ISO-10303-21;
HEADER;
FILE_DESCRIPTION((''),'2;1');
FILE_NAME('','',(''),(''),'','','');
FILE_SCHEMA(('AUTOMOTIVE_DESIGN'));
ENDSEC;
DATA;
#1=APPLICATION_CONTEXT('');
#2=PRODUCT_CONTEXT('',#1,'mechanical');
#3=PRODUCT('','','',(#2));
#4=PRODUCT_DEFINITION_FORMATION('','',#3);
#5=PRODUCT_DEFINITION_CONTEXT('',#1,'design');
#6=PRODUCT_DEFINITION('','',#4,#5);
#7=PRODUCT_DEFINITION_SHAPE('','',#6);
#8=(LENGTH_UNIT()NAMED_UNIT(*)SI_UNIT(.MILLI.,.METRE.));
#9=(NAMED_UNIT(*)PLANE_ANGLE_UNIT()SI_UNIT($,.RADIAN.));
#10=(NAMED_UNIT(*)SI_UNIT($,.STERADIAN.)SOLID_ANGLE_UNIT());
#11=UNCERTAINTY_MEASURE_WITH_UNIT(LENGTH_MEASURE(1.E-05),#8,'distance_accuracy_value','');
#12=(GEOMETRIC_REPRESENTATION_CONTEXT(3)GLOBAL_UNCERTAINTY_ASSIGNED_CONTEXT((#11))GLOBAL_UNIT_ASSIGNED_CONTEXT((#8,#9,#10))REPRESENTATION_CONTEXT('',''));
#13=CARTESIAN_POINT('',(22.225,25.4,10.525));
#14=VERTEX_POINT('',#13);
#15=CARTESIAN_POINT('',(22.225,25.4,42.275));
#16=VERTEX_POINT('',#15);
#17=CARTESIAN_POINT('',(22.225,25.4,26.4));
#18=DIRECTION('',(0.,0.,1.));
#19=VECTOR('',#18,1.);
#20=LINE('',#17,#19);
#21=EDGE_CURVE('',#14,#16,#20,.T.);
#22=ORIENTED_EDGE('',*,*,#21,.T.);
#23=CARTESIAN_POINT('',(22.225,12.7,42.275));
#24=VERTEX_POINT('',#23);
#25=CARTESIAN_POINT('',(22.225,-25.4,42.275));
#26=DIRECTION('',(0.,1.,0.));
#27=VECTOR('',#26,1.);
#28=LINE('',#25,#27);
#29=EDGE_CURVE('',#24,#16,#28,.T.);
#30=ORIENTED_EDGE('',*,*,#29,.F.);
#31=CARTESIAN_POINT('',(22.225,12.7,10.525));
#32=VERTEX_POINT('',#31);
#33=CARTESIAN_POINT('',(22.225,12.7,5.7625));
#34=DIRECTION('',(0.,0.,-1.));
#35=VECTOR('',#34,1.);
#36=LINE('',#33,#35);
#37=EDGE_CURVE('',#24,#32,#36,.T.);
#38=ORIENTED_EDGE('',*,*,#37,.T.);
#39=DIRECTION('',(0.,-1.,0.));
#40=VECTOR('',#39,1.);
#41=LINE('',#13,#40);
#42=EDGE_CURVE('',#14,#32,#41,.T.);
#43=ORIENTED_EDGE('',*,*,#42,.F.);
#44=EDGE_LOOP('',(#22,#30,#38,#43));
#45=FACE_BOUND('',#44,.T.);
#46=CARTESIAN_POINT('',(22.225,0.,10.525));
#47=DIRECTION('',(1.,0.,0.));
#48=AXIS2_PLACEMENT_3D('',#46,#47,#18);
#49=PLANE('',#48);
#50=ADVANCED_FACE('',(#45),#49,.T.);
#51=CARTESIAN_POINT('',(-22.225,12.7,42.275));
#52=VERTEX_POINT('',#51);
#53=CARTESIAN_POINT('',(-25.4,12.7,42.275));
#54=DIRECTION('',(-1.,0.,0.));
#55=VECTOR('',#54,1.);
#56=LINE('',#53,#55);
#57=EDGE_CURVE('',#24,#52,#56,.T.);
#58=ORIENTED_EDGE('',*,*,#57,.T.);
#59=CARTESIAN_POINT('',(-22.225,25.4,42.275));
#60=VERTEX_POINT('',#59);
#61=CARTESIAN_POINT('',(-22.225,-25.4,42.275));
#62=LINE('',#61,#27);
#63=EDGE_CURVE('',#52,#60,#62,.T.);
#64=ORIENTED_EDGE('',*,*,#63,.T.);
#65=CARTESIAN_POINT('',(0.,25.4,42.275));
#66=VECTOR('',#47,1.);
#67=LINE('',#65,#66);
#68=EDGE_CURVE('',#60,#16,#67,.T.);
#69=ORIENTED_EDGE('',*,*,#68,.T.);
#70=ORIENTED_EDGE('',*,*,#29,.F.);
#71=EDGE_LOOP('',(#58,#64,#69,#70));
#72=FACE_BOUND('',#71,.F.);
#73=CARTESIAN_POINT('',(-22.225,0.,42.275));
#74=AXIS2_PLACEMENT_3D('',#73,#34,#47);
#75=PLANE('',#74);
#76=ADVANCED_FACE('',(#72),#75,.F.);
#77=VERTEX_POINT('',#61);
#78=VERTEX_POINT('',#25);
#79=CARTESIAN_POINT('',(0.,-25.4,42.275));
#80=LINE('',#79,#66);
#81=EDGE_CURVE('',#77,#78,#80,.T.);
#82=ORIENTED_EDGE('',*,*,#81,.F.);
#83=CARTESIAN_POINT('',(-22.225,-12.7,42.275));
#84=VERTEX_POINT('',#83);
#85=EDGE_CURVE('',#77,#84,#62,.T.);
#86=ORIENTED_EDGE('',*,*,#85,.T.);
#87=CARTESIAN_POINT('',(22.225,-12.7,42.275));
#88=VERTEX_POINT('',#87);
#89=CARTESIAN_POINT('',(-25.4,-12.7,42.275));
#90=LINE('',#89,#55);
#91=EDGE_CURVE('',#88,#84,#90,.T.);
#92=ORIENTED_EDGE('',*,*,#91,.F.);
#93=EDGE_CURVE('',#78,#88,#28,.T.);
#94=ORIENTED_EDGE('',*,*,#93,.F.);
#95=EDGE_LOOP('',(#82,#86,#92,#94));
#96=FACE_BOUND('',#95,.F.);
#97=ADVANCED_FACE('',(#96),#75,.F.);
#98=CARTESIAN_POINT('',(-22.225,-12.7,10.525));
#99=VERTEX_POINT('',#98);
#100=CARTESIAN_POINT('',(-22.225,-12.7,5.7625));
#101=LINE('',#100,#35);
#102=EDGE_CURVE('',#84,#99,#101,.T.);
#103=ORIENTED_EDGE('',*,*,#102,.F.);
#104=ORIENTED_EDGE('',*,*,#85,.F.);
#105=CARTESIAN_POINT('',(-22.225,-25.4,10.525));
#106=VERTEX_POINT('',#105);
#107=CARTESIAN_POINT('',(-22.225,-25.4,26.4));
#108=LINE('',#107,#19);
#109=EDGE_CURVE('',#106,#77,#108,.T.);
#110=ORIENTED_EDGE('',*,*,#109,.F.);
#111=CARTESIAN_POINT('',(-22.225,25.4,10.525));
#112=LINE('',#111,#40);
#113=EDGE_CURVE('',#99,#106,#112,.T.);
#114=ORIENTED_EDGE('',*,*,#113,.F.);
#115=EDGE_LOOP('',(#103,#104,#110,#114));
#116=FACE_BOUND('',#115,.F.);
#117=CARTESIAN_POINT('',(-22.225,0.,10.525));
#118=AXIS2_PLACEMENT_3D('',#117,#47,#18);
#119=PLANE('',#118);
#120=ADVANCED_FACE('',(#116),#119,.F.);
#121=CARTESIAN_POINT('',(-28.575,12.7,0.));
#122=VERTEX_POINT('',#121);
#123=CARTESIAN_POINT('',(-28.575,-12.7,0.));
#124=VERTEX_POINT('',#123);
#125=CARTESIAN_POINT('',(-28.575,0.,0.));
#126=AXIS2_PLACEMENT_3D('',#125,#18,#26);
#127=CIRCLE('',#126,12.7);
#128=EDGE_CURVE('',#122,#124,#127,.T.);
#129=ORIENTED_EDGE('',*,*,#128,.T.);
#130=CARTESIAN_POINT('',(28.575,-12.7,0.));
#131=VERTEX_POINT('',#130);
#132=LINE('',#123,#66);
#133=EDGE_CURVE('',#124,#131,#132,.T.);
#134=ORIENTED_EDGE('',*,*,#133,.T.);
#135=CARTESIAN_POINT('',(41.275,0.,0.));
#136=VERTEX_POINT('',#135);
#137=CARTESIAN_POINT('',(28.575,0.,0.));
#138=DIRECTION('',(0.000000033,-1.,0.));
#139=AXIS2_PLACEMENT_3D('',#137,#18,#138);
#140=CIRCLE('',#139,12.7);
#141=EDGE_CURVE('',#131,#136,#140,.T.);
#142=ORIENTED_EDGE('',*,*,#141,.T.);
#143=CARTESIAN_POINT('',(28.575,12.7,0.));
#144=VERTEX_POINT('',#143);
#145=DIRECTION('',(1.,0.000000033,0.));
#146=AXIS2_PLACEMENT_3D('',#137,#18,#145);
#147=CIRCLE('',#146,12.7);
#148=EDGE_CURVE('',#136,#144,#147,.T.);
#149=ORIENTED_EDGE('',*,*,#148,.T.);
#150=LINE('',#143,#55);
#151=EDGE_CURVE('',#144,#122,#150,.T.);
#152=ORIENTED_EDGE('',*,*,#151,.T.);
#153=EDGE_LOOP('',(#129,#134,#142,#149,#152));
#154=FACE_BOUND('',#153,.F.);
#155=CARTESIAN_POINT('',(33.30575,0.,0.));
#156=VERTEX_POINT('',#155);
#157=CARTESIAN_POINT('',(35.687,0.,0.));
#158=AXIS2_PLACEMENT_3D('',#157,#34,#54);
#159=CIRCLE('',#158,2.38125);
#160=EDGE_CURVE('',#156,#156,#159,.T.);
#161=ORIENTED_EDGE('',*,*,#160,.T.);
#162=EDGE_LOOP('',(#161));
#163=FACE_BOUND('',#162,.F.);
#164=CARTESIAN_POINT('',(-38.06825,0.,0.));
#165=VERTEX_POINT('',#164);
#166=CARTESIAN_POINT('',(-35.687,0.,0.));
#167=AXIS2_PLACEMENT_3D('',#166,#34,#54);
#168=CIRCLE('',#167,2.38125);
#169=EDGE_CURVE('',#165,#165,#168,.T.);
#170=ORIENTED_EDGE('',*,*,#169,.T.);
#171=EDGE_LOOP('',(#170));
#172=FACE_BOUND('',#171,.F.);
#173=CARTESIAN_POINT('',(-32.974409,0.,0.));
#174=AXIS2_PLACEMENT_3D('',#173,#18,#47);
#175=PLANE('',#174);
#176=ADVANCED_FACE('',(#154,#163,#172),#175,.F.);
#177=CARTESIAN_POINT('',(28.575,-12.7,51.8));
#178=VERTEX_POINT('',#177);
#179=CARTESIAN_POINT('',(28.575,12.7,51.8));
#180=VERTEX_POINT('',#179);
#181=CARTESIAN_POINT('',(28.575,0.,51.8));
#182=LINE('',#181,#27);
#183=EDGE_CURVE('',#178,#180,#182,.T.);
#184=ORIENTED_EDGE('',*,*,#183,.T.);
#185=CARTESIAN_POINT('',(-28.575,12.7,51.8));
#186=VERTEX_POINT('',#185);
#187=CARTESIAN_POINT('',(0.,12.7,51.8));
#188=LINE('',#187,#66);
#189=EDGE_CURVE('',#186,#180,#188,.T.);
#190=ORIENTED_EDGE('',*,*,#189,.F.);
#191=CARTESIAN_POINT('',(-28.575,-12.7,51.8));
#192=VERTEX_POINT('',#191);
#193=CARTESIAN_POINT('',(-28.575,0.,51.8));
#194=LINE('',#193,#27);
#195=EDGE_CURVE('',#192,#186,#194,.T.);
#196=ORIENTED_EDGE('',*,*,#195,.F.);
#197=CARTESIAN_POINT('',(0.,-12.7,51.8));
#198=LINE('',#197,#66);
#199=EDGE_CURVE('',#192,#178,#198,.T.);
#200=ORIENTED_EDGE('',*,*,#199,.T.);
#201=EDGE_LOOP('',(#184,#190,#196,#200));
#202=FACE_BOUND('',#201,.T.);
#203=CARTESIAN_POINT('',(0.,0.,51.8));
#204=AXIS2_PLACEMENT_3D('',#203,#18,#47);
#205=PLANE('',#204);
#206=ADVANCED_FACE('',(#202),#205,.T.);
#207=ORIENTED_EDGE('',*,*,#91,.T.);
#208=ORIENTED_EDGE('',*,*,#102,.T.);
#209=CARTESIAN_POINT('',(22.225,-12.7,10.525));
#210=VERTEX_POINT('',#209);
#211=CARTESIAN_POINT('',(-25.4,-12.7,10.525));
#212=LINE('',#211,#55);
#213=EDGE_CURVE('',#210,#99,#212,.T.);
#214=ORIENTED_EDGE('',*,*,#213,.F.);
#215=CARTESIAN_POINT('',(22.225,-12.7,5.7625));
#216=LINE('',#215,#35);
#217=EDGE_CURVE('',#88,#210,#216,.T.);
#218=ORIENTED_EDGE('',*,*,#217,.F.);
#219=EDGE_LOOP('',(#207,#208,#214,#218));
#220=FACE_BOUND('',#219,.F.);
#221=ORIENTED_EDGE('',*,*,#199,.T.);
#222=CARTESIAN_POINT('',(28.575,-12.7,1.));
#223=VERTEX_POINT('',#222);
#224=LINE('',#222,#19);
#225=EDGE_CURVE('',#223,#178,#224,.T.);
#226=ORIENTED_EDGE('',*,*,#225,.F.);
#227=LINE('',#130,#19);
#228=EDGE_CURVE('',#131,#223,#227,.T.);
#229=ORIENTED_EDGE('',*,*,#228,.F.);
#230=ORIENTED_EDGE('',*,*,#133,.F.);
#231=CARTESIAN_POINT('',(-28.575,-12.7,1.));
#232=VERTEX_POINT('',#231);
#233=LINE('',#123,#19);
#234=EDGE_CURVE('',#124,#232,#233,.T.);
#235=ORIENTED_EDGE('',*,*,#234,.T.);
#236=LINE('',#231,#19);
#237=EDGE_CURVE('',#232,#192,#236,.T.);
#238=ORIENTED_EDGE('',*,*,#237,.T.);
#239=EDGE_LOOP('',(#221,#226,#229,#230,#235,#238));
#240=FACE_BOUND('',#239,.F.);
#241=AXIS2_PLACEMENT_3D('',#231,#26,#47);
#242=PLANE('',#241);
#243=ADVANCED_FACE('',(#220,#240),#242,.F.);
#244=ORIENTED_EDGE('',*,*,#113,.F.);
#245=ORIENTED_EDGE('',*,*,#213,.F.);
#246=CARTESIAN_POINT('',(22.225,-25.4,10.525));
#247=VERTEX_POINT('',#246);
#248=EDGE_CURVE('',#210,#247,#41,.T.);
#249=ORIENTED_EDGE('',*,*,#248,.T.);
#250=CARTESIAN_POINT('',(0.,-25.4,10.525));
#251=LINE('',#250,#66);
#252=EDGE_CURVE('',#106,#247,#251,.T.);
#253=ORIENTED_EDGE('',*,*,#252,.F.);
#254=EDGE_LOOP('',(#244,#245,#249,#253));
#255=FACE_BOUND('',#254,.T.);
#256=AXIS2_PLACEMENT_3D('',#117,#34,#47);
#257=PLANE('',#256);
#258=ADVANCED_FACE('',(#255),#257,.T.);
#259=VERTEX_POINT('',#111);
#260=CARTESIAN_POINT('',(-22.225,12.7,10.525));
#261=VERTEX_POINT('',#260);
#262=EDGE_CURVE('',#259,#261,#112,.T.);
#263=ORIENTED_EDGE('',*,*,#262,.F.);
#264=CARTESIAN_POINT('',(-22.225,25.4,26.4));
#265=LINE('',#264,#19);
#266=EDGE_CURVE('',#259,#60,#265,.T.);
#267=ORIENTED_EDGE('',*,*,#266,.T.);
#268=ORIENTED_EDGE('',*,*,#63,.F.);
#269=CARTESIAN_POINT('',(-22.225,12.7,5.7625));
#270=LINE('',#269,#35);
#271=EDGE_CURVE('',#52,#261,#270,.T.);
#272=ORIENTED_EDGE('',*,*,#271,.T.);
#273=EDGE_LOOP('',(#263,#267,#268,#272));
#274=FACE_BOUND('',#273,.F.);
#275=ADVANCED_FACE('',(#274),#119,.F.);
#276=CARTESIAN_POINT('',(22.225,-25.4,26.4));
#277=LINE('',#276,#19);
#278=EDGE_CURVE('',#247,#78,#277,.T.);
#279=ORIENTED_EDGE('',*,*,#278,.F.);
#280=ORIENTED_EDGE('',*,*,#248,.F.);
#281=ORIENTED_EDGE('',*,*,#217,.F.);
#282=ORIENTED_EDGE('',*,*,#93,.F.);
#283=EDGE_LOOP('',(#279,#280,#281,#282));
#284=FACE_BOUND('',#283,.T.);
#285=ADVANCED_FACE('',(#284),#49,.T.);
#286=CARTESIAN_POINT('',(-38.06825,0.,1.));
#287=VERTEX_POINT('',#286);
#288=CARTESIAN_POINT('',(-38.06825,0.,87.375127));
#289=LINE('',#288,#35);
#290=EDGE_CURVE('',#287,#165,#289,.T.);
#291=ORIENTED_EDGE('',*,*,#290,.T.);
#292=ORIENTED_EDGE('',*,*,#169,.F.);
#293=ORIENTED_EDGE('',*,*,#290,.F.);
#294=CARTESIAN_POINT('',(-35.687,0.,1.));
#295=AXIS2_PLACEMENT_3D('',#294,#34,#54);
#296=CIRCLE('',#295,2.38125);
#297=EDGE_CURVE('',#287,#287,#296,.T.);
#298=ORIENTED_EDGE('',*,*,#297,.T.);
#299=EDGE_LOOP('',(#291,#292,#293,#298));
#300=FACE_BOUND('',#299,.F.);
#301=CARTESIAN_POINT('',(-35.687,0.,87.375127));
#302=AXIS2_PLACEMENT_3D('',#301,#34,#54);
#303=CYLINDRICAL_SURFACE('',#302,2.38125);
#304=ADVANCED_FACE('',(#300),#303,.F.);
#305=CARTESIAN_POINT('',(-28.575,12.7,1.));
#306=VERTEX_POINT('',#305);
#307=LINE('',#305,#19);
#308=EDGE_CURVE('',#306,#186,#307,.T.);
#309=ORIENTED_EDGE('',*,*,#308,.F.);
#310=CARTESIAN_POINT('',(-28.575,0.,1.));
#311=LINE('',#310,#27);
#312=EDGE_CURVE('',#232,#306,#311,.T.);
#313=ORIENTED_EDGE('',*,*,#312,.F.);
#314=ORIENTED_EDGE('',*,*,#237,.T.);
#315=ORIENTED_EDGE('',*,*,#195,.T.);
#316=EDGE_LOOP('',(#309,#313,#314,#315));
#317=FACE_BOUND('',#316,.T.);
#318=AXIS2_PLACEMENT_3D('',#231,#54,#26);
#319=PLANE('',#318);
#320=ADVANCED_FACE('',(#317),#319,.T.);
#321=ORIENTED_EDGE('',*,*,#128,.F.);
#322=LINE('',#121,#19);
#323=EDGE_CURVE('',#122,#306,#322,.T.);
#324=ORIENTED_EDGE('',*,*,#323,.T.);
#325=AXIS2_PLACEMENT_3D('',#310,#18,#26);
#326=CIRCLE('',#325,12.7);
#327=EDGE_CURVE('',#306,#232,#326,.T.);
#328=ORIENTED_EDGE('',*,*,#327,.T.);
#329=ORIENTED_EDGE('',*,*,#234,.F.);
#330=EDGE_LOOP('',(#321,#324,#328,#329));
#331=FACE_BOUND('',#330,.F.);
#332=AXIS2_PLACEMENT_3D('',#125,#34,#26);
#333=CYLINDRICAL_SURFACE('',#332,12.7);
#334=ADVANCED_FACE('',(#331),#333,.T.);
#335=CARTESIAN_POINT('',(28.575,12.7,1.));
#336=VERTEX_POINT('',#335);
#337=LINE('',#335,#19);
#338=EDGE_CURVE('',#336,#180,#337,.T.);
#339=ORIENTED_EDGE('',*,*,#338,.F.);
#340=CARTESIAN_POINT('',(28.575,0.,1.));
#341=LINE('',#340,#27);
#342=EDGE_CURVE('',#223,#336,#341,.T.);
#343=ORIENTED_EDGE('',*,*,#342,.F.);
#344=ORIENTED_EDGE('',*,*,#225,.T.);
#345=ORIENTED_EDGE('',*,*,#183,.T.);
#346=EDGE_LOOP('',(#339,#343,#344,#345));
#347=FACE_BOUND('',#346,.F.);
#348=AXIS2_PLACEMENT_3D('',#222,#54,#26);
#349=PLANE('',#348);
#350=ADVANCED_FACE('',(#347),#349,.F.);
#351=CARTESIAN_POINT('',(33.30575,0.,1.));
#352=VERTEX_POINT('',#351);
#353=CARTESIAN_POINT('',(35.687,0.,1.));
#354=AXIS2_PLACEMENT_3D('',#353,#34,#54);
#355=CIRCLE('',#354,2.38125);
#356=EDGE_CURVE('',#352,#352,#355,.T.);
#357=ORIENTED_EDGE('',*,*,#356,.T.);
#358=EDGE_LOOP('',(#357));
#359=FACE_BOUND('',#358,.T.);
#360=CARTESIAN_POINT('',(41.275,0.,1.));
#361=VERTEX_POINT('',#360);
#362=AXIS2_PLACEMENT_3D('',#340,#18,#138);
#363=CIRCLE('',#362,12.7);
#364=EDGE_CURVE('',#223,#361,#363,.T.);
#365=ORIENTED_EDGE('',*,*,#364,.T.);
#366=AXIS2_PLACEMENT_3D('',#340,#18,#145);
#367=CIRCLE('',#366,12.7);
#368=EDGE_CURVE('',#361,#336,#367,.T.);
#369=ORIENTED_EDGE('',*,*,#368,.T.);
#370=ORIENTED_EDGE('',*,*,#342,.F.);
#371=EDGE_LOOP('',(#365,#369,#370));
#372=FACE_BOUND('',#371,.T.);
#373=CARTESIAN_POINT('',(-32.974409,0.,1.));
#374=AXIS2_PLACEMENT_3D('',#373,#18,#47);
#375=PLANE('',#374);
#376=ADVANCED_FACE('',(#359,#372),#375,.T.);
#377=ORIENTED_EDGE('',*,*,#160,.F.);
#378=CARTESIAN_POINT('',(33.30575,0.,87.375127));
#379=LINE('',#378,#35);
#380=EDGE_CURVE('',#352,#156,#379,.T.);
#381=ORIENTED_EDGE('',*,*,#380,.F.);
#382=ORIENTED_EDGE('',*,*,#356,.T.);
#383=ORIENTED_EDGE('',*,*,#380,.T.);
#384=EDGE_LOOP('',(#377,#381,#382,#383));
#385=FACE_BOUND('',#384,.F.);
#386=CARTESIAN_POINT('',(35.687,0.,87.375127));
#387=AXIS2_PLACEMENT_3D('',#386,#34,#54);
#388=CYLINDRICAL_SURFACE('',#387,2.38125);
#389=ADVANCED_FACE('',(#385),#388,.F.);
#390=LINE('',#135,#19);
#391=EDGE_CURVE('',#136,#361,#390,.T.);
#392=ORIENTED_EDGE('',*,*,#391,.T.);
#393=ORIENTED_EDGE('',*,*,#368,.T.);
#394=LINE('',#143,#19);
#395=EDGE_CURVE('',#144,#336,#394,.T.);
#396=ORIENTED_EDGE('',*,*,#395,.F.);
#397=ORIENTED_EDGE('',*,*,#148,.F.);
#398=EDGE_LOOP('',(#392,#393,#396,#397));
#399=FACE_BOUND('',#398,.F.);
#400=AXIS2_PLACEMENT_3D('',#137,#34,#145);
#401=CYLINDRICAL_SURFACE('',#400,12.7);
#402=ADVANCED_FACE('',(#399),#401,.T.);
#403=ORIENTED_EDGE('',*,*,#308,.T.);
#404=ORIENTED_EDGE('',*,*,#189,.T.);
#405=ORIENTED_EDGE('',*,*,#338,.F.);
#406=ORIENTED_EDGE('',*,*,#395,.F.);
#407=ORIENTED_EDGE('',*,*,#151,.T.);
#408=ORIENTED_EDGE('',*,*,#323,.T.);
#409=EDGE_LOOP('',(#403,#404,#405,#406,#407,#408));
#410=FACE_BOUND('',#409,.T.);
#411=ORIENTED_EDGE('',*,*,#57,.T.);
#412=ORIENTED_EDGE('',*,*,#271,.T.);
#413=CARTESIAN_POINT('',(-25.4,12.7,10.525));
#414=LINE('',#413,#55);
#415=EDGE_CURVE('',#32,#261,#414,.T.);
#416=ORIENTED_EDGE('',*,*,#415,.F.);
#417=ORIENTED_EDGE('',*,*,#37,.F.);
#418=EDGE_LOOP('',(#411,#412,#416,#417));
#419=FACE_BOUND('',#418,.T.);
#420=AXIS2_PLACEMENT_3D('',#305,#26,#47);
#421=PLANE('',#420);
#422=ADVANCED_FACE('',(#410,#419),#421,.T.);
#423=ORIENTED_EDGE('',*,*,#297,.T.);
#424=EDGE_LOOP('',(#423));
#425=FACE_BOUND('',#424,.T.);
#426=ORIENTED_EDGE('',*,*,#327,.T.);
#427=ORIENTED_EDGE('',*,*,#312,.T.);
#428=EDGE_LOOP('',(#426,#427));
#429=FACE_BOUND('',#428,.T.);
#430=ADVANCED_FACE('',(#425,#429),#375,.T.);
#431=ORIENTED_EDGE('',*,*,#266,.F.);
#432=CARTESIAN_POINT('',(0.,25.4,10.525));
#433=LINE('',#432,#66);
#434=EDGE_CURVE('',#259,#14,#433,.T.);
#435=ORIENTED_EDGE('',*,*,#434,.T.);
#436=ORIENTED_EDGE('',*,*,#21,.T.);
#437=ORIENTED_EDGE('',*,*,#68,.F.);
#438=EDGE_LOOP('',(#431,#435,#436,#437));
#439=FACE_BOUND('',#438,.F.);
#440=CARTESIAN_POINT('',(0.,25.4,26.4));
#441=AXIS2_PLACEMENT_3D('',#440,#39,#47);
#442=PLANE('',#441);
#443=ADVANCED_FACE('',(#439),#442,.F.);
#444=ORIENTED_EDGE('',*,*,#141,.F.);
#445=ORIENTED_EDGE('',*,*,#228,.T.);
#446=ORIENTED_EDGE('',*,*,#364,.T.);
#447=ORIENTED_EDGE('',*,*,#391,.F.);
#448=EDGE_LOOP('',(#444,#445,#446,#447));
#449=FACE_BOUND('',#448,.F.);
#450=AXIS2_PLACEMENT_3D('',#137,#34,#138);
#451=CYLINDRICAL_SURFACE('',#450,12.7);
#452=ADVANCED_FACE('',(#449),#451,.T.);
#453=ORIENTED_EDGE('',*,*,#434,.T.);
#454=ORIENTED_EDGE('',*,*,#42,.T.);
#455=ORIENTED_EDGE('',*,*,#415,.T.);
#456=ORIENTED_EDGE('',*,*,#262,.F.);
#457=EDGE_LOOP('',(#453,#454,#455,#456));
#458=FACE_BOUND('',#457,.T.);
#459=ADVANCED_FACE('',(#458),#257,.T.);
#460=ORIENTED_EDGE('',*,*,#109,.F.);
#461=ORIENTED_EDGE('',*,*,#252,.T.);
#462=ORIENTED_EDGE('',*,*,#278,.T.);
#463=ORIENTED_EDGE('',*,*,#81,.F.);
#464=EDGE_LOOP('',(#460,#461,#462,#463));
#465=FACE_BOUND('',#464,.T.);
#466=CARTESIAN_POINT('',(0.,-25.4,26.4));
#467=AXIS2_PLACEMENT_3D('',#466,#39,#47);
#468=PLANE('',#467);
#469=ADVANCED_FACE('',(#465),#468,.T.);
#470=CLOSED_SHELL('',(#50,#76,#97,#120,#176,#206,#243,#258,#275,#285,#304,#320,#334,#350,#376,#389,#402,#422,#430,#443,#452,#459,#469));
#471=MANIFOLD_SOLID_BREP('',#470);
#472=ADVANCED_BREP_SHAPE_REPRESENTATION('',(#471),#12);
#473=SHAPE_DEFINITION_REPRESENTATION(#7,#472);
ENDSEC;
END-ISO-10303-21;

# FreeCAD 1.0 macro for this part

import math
import FreeCAD as App
import Part
import Sketcher

V = App.Vector
Q = App.Units.Quantity


def add_polygon(sketch, points):
    """Adds a closed chain of lines whose ends are joined by coincident constraints."""
    first, n = sketch.GeometryCount, len(points)
    for a, b in zip(points, points[1:] + points[:1]):
        sketch.addGeometry(Part.LineSegment(App.Vector(*a, 0), App.Vector(*b, 0)), False)
    for i in range(n):
        sketch.addConstraint(Sketcher.Constraint("Coincident", first + i, 2, first + (i + 1) % n, 1))

doc = App.newDocument("Part")
body = doc.addObject("PartDesign::Body", "Body")

# Sketch on XY plane
sketch1 = body.newObject("Sketcher::SketchObject", "Sketch")
sketch1.AttachmentSupport = (doc.getObject("XY_Plane"), [""])
sketch1.MapMode = "FlatFace"
sketch1.addGeometry([
    Part.ArcOfCircle(Part.Circle(V(-29, 0, 0), V(0, 0, 1), 13), math.radians(90), math.radians(270)),  # 0
    Part.LineSegment(V(-29, -13, 0), V(29, -13, 0)),  # 1
    Part.ArcOfCircle(Part.Circle(V(29, 0, 0), V(0, 0, 1), 13), math.radians(-90), math.radians(0)),  # 2
    Part.ArcOfCircle(Part.Circle(V(29, 0, 0), V(0, 0, 1), 13), math.radians(0), math.radians(90)),  # 3
    Part.LineSegment(V(29, 13, 0), V(-29, 13, 0)),  # 4
], False)
sketch1.addConstraint([
    Sketcher.Constraint("Tangent", 0, 2, 1, 1),
    Sketcher.Constraint("Tangent", 1, 2, 2, 1),
    Sketcher.Constraint("Tangent", 2, 2, 3, 1),
    Sketcher.Constraint("Tangent", 3, 2, 4, 1),
    Sketcher.Constraint("Tangent", 4, 2, 0, 1),
    Sketcher.Constraint("Horizontal", 1),
    Sketcher.Constraint("Horizontal", 4),
    Sketcher.Constraint("Equal", 0, 2),
    Sketcher.Constraint("Symmetric", 0, 3, 2, 3, -1, 1),
    Sketcher.Constraint("PointOnObject", 2, 2, -1),
    Sketcher.Constraint("Radius", 0, Q("0.5 in")),
    Sketcher.Constraint("DistanceX", 1, 1, 1, 2, Q("2.25 in")),
])
pad1 = body.newObject("PartDesign::Pad", "Pad")
pad1.Profile = sketch1
pad1.Length = 1

# Sketch on XY plane
sketch2 = body.newObject("Sketcher::SketchObject", "Sketch001")
sketch2.AttachmentSupport = (doc.getObject("XY_Plane"), [""])
sketch2.MapMode = "FlatFace"
sketch2.AttachmentOffset = App.Placement(V(0, 0, 1), App.Rotation())
sketch2.addGeometry([
    Part.Circle(V(-35.7, 0, 0), V(0, 0, 1), 2.4),
    Part.Circle(V(35.7, 0, 0), V(0, 0, 1), 2.4),
], False)
sketch2.addConstraint([
    Sketcher.Constraint("Equal", 0, 1),
    Sketcher.Constraint("Symmetric", 0, 3, 1, 3, -1, 1),
    Sketcher.Constraint("PointOnObject", 0, 3, -1),
    Sketcher.Constraint("Diameter", 0, Q("0.1875 in")),
    Sketcher.Constraint("DistanceX", 0, 3, 1, 3, Q("2.81 in")),
])
doc.recompute()
hole = body.newObject("PartDesign::Hole", "Hole")
hole.Profile = sketch2
hole.ThreadType = "None"
hole.Diameter = Q("0.1875 in")
hole.DepthType = "ThroughAll"

# Sketch on XY plane
sketch3 = body.newObject("Sketcher::SketchObject", "Sketch002")
sketch3.AttachmentSupport = (doc.getObject("XY_Plane"), [""])
sketch3.MapMode = "FlatFace"
sketch3.AttachmentOffset = App.Placement(V(0, 0, 1), App.Rotation())
add_polygon(sketch3, [(-29, 13), (-29, -13), (29, -13), (29, 13)])  # lines 0-3
sketch3.addConstraint([
    Sketcher.Constraint("Vertical", 0),
    Sketcher.Constraint("Horizontal", 1),
    Sketcher.Constraint("Vertical", 2),
    Sketcher.Constraint("Horizontal", 3),
    Sketcher.Constraint("Symmetric", 0, 2, 2, 2, -1, 1),
    Sketcher.Constraint("DistanceY", 0, 2, 0, 1, Q("1 in")),
    Sketcher.Constraint("DistanceX", 1, 1, 1, 2, Q("2.25 in")),
])
pad2 = body.newObject("PartDesign::Pad", "Pad001")
pad2.Profile = sketch3
pad2.Length = Q("2 in")

# Sketch on XZ plane
sketch4 = body.newObject("Sketcher::SketchObject", "Sketch003")
sketch4.AttachmentSupport = (doc.getObject("XZ_Plane"), [""])
sketch4.MapMode = "FlatFace"
add_polygon(sketch4, [(-22, 42), (-22, 11), (22, 11), (22, 42)])  # lines 0-3
sketch4.addConstraint([
    Sketcher.Constraint("Vertical", 0),
    Sketcher.Constraint("Horizontal", 1),
    Sketcher.Constraint("Vertical", 2),
    Sketcher.Constraint("Horizontal", 3),
    Sketcher.Constraint("DistanceX", 1, 1, 1, 2, Q("1.75 in")),
    Sketcher.Constraint("DistanceY", 0, 2, 0, 1, Q("1.25 in")),
    Sketcher.Constraint("DistanceX", 0, 2, -1, 1, Q("0.875 in")),
    Sketcher.Constraint("DistanceY", -1, 1, 0, 2, Q("10.525 mm")),
])
pad3 = body.newObject("PartDesign::Pad", "Pad002")
pad3.Profile = sketch4
pad3.Length = Q("2 in")
pad3.Midplane = True

doc.recompute()
